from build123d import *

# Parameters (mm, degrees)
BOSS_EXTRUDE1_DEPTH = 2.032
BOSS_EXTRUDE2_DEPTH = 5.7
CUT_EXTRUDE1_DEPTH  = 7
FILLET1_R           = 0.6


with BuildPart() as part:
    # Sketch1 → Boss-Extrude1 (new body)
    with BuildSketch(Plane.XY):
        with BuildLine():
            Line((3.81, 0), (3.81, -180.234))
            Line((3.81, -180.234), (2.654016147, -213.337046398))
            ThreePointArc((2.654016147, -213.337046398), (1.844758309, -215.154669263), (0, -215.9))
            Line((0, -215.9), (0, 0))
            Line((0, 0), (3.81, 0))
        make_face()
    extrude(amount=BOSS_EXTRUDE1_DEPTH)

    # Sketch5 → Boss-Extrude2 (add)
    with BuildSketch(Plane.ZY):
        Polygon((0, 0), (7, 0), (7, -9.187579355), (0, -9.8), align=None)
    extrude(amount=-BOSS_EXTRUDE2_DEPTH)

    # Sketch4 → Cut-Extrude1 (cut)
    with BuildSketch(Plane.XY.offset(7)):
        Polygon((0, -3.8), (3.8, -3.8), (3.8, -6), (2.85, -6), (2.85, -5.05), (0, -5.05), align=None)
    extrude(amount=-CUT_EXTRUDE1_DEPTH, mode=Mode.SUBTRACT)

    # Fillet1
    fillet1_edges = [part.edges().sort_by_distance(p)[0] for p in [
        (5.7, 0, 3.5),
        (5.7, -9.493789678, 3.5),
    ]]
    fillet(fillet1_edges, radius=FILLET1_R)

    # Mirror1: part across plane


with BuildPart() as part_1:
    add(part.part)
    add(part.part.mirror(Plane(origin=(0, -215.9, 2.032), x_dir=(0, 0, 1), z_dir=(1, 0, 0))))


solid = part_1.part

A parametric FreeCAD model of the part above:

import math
import FreeCAD as App
import Part
import Sketcher
from FreeCAD import Vector
Q = App.Units.Quantity


def edges_at(feature, points):
    """Names of the edges that pass closest to the given points."""
    edges = feature.Shape.Edges
    near = lambda p: min(range(len(edges)), key=lambda i: edges[i].distToShape(Part.Vertex(*p))[0])
    return sorted({f"Edge{near(p) + 1}" for p in points})


def add_polygon(sketch, points):
    """Adds a closed chain of lines whose ends are joined by coincident constraints."""
    first, n = sketch.GeometryCount, len(points)
    for a, b in zip(points, points[1:] + points[:1]):
        sketch.addGeometry(Part.LineSegment(App.Vector(*a, 0), App.Vector(*b, 0)), False)
    for i in range(n):
        sketch.addConstraint(Sketcher.Constraint("Coincident", first + i, 2, first + (i + 1) % n, 1))

doc = App.newDocument("Part")
params = doc.addObject("Spreadsheet::Sheet", "Params")
for row, (alias, value) in enumerate([
    ("sketch1_height", "215.9 mm"),
    ("sketch1_width", "3.81 mm"),
    ("pad1_length", "2.032 mm"),
    ("sketch2_height", "7 mm"),
    ("sketch2_width", "9.8 mm"),
    ("pad2_length", "5.7 mm"),
    ("sketch3_width", "3.8 mm"),
    ("sketch3_height", "2.2 mm"),
    ("sketch3_width2", "2.85 mm"),
    ("pocket1_length", "7 mm"),
    ("fillet_radius", "0.6 mm"),
], start=1):
    params.set(f"A{row}", alias)
    params.set(f"B{row}", "=" + value)
    params.setAlias(f"B{row}", alias)

body = doc.addObject("PartDesign::Body", "Body")

# Sketch on XY plane
sketch1 = body.newObject("Sketcher::SketchObject", "Sketch")
sketch1.AttachmentSupport = (doc.getObject("XY_Plane"), [""])
sketch1.MapMode = "FlatFace"
sketch1.addGeometry([
    Part.LineSegment(Vector(3.8, -180.2, 0), Vector(3.8, 0, 0)),  # 0
    Part.LineSegment(Vector(3.8, 0, 0), Vector(0, 0, 0)),  # 1
    Part.LineSegment(Vector(0, 0, 0), Vector(0, -215.9, 0)),  # 2
    Part.ArcOfCircle(Part.Circle(Vector(0, -213.2, 0), Vector(0, 0, 1), 2.7), math.radians(-90), math.radians(-2)),  # 3
    Part.LineSegment(Vector(2.7, -213.3, 0), Vector(3.8, -180.2, 0)),  # 4
], False)
sketch1.addConstraint([
    Sketcher.Constraint("Coincident", 0, 2, 1, 1),
    Sketcher.Constraint("Coincident", 1, 2, 2, 1),
    Sketcher.Constraint("Coincident", 2, 2, 3, 1),
    Sketcher.Constraint("Tangent", 3, 2, 4, 1),
    Sketcher.Constraint("Coincident", 4, 2, 0, 1),
    Sketcher.Constraint("Vertical", 0),
    Sketcher.Constraint("Horizontal", 1),
    Sketcher.Constraint("Vertical", 2),
    Sketcher.Constraint("Coincident", 1, 2, -1, 1),
    Sketcher.Constraint("PointOnObject", 3, 3, -2),
    Sketcher.Constraint("Angle", 4, Q("88 deg")),
    Sketcher.Constraint("DistanceY", 2, 2, 2, 1, Q("215.9 mm")),
    Sketcher.Constraint("DistanceX", 1, 2, 1, 1, Q("3.81 mm")),
    Sketcher.Constraint("DistanceY", 0, 1, 0, 2, Q("180.234 mm")),
])
sketch1.setExpression("Constraints[11]", "Params.sketch1_height")
sketch1.setExpression("Constraints[12]", "Params.sketch1_width")
pad1 = body.newObject("PartDesign::Pad", "Pad")
pad1.Profile = sketch1
pad1.setExpression("Length", "Params.pad1_length")

# Sketch on YZ plane
sketch2 = body.newObject("Sketcher::SketchObject", "Sketch001")
sketch2.AttachmentSupport = (doc.getObject("YZ_Plane"), [""])
sketch2.MapMode = "FlatFace"
add_polygon(sketch2, [(0, 7), (0, 0), (-10, 0), (-9, 7)])  # lines 0-3
sketch2.addConstraint([
    Sketcher.Constraint("Vertical", 0),
    Sketcher.Constraint("Horizontal", 1),
    Sketcher.Constraint("Horizontal", 3),
    Sketcher.Constraint("Coincident", 0, 2, -1, 1),
    Sketcher.Constraint("DistanceY", 0, 2, 0, 1, Q("7 mm")),
    Sketcher.Constraint("Angle", 2, Q("85 deg")),
    Sketcher.Constraint("DistanceX", 1, 2, 1, 1, Q("9.8 mm")),
])
sketch2.setExpression("Constraints[8]", "Params.sketch2_height")
sketch2.setExpression("Constraints[10]", "Params.sketch2_width")
pad2 = body.newObject("PartDesign::Pad", "Pad001")
pad2.Profile = sketch2
pad2.setExpression("Length", "Params.pad2_length")

# Sketch on XY plane
sketch3 = body.newObject("Sketcher::SketchObject", "Sketch002")
sketch3.AttachmentSupport = (doc.getObject("XY_Plane"), [""])
sketch3.MapMode = "FlatFace"
sketch3.AttachmentOffset = App.Placement(Vector(0, 0, 7), App.Rotation())
add_polygon(sketch3, [(3.8, -3.8), (0, -3.8), (0, -5), (2.9, -5), (2.9, -6), (3.8, -6)])  # lines 0-5
sketch3.addConstraint([
    Sketcher.Constraint("Horizontal", 0),
    Sketcher.Constraint("Vertical", 1),
    Sketcher.Constraint("Horizontal", 2),
    Sketcher.Constraint("Vertical", 3),
    Sketcher.Constraint("Horizontal", 4),
    Sketcher.Constraint("Vertical", 5),
    Sketcher.Constraint("PointOnObject", 0, 2, -2),
    Sketcher.Constraint("Equal", 4, 3),
    Sketcher.Constraint("DistanceX", 0, 2, 0, 1, Q("3.8 mm")),
    Sketcher.Constraint("DistanceY", 5, 1, 5, 2, Q("2.2 mm")),
    Sketcher.Constraint("DistanceY", 3, 2, -1, 1, Q("6 mm")),
    Sketcher.Constraint("DistanceX", 2, 1, 2, 2, Q("2.85 mm")),
])
sketch3.setExpression("Constraints[14]", "Params.sketch3_width")
sketch3.setExpression("Constraints[15]", "Params.sketch3_height")
sketch3.setExpression("Constraints[17]", "Params.sketch3_width2")
pocket1 = body.newObject("PartDesign::Pocket", "Pocket")
pocket1.Profile = sketch3
pocket1.setExpression("Length", "Params.pocket1_length")
doc.recompute()

fillet = body.newObject("PartDesign::Fillet", "Fillet")
fillet.Base = (pocket1, edges_at(pocket1, [(5.7, 0, 3.5), (5.7, -9.494, 3.5)]))
fillet.setExpression("Radius", "Params.fillet_radius")
body2 = doc.addObject("PartDesign::Body", "Body001")
doc.recompute()

body2.BaseFeature = body
doc.recompute()

mirroring = doc.addObject("Part::Mirroring", "Mirroring")
mirroring.Source = body
mirroring.Base = Vector(0, -215.9, 2.032)
mirroring.Normal = Vector(1, 0, 0)
body3 = doc.addObject("PartDesign::Body", "Body002")
body3.BaseFeature = mirroring
boolean = body2.newObject("PartDesign::Boolean", "Boolean")
boolean.Type = "Fuse"
boolean.addObjects([body3])
doc.recompute()
mirroring.Visibility = False

doc.recompute()
